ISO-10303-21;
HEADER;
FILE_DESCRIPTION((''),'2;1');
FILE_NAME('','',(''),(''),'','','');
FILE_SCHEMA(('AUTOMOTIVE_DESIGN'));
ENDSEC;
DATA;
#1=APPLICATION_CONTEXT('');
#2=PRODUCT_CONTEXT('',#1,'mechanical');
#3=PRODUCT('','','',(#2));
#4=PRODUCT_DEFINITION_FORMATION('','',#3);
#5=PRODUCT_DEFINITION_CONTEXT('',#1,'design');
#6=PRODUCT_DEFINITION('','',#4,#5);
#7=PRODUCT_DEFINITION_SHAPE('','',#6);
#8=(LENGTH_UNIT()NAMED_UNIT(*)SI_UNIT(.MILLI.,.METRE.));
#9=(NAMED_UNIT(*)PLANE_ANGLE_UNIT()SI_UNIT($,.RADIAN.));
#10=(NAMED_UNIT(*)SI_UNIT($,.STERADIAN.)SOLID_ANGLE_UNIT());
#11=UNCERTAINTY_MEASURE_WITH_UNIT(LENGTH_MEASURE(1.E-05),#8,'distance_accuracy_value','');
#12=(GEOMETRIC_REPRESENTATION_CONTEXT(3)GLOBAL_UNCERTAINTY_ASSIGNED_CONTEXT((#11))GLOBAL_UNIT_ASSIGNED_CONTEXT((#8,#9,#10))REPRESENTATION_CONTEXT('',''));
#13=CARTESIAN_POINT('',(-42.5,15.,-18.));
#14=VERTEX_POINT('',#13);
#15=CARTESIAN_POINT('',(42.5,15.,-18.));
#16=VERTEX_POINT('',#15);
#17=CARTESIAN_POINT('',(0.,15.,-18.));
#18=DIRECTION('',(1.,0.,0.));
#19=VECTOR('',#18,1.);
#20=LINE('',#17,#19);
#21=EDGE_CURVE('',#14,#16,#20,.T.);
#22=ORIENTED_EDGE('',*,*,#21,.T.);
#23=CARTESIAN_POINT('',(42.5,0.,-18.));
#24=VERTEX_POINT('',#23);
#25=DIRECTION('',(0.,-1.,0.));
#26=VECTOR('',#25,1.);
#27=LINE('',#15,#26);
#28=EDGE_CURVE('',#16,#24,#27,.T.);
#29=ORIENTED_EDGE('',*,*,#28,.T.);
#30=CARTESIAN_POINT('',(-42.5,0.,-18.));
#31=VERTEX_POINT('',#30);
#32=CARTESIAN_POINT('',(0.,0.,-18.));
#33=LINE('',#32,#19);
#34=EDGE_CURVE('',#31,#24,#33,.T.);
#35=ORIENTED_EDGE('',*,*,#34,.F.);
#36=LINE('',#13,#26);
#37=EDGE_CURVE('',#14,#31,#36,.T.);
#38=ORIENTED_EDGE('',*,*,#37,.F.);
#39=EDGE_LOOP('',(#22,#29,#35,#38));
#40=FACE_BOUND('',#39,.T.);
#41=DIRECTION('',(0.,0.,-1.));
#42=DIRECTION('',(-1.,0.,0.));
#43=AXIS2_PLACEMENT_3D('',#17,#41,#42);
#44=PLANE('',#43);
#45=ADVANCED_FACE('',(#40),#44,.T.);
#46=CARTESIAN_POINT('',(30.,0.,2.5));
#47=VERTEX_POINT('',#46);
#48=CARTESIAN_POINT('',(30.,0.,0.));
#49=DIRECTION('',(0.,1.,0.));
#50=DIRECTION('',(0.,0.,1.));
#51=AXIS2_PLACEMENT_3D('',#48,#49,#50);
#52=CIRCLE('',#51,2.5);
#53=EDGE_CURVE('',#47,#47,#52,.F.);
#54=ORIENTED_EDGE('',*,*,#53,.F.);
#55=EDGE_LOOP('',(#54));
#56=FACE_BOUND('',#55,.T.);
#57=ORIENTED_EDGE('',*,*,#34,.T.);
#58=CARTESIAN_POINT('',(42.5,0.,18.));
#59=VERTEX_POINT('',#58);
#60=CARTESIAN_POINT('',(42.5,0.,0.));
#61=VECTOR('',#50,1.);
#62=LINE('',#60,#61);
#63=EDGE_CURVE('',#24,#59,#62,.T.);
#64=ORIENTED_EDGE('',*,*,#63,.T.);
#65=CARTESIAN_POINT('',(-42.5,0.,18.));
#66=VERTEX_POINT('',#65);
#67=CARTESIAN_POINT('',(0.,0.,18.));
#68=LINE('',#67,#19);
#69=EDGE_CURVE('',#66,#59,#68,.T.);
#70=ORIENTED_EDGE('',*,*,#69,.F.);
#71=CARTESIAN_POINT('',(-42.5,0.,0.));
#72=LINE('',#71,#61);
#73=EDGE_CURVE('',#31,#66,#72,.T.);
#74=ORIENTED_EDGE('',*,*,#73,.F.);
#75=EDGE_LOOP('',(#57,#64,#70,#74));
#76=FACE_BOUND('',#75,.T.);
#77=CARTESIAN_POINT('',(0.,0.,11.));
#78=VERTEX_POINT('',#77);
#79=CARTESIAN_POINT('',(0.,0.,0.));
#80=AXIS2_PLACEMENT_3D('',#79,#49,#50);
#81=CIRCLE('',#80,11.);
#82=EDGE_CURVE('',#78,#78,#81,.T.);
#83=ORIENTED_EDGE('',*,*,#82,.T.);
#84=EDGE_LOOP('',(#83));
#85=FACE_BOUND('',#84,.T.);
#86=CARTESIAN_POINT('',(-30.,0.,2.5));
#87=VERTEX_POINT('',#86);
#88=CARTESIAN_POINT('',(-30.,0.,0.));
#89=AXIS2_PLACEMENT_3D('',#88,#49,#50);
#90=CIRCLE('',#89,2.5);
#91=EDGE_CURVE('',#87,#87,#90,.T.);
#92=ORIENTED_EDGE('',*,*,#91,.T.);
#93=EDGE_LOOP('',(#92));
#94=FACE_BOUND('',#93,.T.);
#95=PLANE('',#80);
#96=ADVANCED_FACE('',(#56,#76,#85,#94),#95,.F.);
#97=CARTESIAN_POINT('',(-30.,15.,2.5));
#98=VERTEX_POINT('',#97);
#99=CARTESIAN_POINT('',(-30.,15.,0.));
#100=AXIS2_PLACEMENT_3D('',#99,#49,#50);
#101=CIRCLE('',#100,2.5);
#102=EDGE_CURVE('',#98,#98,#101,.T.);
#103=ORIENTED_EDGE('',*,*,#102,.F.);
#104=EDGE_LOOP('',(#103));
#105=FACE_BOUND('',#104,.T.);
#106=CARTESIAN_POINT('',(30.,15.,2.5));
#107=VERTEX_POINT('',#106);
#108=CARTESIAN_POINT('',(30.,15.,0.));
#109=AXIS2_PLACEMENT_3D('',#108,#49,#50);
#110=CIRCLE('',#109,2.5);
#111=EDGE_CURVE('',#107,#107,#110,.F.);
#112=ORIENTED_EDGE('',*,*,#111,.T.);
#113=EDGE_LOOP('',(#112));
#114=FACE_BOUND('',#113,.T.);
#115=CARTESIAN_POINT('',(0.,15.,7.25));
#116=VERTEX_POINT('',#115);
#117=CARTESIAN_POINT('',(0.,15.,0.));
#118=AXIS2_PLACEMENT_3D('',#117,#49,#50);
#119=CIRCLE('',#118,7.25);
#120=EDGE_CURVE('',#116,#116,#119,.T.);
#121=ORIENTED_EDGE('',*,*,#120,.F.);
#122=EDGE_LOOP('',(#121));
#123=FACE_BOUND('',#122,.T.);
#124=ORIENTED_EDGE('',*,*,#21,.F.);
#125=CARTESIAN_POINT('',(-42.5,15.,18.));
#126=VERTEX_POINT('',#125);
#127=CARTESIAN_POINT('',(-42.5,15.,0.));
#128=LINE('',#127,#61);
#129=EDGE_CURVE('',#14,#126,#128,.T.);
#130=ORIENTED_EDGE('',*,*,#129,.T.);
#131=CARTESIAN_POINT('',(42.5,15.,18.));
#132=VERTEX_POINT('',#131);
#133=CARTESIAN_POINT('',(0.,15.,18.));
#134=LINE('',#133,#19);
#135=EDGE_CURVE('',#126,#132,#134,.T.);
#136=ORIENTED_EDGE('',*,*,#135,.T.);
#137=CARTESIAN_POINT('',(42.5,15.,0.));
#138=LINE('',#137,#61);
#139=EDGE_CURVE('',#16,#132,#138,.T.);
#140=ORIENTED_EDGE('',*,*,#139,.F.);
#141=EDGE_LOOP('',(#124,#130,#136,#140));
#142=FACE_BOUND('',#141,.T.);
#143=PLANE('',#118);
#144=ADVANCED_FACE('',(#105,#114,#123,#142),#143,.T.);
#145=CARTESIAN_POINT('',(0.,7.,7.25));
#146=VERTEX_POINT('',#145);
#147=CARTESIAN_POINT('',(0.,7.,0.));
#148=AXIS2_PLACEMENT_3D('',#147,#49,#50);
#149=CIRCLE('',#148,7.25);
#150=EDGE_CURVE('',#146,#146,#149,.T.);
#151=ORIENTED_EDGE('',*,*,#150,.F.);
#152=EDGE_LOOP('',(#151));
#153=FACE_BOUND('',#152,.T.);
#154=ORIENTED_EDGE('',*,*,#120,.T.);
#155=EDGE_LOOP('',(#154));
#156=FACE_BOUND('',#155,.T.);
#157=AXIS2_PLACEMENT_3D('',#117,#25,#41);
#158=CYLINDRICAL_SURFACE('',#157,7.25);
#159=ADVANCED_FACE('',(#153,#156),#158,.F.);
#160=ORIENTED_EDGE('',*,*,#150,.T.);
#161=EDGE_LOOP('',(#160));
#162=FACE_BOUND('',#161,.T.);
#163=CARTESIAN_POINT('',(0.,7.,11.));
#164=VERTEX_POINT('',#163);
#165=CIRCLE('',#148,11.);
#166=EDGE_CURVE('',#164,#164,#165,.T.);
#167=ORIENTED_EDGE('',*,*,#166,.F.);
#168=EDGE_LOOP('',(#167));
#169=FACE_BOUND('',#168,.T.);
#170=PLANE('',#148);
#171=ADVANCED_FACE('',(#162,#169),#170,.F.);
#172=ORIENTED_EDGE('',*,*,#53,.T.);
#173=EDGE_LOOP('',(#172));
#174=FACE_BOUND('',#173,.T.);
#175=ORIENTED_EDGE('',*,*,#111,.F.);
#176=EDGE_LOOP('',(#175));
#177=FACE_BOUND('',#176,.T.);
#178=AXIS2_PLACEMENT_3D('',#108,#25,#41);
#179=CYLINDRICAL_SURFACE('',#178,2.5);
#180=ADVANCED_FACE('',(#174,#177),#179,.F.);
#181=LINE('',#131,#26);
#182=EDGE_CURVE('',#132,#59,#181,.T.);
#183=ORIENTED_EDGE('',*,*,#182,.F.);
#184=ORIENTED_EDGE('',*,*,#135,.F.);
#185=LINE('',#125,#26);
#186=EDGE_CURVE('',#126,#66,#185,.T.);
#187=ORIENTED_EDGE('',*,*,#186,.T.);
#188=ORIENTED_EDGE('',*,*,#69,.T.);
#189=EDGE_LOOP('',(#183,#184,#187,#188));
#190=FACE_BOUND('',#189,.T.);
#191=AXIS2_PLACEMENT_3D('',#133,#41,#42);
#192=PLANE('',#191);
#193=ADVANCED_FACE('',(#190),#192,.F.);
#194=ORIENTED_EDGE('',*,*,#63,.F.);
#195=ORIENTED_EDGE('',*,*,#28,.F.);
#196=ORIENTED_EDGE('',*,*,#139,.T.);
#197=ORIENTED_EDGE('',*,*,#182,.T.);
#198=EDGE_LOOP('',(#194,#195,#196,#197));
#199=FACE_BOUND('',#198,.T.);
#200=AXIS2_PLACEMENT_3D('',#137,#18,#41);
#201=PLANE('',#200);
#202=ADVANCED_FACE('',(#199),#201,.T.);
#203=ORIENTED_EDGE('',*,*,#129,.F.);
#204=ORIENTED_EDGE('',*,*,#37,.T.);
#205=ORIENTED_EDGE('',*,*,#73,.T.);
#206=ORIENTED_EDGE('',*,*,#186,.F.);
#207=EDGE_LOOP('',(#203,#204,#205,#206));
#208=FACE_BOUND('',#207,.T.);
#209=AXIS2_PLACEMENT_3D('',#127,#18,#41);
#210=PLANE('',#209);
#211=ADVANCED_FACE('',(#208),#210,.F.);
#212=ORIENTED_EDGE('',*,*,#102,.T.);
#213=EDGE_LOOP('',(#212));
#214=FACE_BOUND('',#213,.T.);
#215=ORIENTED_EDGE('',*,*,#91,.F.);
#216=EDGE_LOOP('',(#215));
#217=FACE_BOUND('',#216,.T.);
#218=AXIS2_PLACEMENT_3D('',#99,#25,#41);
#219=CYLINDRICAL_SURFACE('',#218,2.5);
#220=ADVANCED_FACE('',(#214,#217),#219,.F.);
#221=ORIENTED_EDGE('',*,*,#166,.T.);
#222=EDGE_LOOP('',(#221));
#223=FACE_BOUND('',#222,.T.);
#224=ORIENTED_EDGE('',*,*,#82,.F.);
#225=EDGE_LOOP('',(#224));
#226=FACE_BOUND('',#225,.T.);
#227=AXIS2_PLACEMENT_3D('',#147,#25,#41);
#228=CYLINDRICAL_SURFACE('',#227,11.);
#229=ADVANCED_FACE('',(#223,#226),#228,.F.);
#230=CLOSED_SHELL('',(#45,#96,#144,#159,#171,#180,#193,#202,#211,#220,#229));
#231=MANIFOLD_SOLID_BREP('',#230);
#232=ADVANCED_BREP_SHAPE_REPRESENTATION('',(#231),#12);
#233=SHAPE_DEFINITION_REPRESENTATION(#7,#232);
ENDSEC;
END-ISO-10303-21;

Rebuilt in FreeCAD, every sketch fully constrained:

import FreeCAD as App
import Part
import Sketcher

V = App.Vector


def add_polygon(sketch, points):
    """Adds a closed chain of lines whose ends are joined by coincident constraints."""
    first, n = sketch.GeometryCount, len(points)
    for a, b in zip(points, points[1:] + points[:1]):
        sketch.addGeometry(Part.LineSegment(App.Vector(*a, 0), App.Vector(*b, 0)), False)
    for i in range(n):
        sketch.addConstraint(Sketcher.Constraint("Coincident", first + i, 2, first + (i + 1) % n, 1))

doc = App.newDocument("Part")
body = doc.addObject("PartDesign::Body", "Body")

# Sketch on XZ plane
sketch1 = body.newObject("Sketcher::SketchObject", "Sketch")
sketch1.AttachmentSupport = (doc.getObject("XZ_Plane"), [""])
sketch1.MapMode = "FlatFace"
add_polygon(sketch1, [(-42.5, -18), (-42.5, 18), (42.5, 18), (42.5, -18)])  # lines 0-3
sketch1.addGeometry(Part.Circle(V(-30, 0, 0), V(0, 0, 1), 2.5), False)  # 4
sketch1.addGeometry(Part.Circle(V(0, 0, 0), V(0, 0, 1), 7.2), False)  # 5
sketch1.addGeometry(Part.Circle(V(30, 0, 0), V(0, 0, 1), 2.5), False)  # 6
sketch1.addConstraint(Sketcher.Constraint("Vertical", 0))
sketch1.addConstraint(Sketcher.Constraint("Horizontal", 1))
sketch1.addConstraint(Sketcher.Constraint("Vertical", 2))
sketch1.addConstraint(Sketcher.Constraint("Horizontal", 3))
sketch1.addConstraint(Sketcher.Constraint("Coincident", 5, 3, -1, 1))
sketch1.addConstraint(Sketcher.Constraint("Equal", 4, 6))
sketch1.addConstraint(Sketcher.Constraint("Symmetric", 4, 3, 6, 3, -1, 1))
sketch1.addConstraint(Sketcher.Constraint("Symmetric", 0, 2, 2, 2, -1, 1))
sketch1.addConstraint(Sketcher.Constraint("PointOnObject", 4, 3, -1))
sketch1.addConstraint(Sketcher.Constraint("Diameter", 4, 5.0))
sketch1.addConstraint(Sketcher.Constraint("Diameter", 5, 14.5))
sketch1.addConstraint(Sketcher.Constraint("DistanceX", 1, 1, 1, 2, 85.0))
sketch1.addConstraint(Sketcher.Constraint("DistanceY", 0, 1, 0, 2, 36.0))
sketch1.addConstraint(Sketcher.Constraint("DistanceX", 4, 3, -1, 1, 30.0))
pad1 = body.newObject("PartDesign::Pad", "Pad")
pad1.Profile = sketch1
pad1.Length = 15
pad1.Reversed = True

# Sketch on XZ plane
sketch2 = body.newObject("Sketcher::SketchObject", "Sketch001")
sketch2.AttachmentSupport = (doc.getObject("XZ_Plane"), [""])
sketch2.MapMode = "FlatFace"
sketch2.addGeometry(Part.Circle(V(0, 0, 0), V(0, 0, 1), 11), False)
sketch2.addConstraint(Sketcher.Constraint("Coincident", 0, 3, -1, 1))
sketch2.addConstraint(Sketcher.Constraint("Diameter", 0, 22.0))
pocket1 = body.newObject("PartDesign::Pocket", "Pocket")
pocket1.Profile = sketch2
pocket1.Length = 7

doc.recompute()
